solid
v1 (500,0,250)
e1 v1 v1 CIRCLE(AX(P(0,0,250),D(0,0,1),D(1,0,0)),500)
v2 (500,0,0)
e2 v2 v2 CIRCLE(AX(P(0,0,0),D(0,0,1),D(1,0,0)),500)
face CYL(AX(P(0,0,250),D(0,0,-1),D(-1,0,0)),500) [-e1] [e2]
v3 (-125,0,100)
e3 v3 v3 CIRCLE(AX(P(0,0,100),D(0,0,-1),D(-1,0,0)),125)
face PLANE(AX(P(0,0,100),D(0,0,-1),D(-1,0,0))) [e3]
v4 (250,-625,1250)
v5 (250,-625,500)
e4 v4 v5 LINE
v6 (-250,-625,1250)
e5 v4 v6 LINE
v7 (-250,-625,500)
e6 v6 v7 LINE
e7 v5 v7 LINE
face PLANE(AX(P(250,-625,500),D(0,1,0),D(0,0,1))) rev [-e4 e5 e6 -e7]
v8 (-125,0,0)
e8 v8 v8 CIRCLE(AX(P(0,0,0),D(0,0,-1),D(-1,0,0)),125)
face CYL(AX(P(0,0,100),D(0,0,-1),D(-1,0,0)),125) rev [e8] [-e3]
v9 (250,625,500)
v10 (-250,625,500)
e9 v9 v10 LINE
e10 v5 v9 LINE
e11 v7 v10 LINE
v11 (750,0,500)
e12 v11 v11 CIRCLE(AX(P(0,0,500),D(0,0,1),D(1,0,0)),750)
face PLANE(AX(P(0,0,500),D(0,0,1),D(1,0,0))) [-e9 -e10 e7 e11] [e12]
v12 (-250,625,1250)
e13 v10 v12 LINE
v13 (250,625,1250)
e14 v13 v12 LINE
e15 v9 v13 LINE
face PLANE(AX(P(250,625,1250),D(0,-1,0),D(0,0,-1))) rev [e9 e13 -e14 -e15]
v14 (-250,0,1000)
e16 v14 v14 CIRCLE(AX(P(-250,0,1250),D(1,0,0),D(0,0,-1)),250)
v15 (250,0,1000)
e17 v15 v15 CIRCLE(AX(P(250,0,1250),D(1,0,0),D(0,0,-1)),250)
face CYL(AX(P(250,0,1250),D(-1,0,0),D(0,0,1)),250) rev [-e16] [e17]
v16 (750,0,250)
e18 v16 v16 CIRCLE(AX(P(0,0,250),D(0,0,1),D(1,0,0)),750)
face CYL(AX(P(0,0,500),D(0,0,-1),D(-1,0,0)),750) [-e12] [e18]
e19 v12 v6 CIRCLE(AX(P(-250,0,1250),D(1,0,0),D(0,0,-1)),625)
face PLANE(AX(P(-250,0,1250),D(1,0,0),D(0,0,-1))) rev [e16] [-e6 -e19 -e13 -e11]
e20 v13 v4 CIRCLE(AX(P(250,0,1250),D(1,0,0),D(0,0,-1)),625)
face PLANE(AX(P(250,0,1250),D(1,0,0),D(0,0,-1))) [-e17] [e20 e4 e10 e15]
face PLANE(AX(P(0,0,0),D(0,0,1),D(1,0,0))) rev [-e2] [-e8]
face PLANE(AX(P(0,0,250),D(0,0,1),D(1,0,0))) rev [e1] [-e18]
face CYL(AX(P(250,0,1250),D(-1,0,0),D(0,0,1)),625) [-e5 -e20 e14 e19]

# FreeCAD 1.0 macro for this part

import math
import FreeCAD as App
import Part
import Sketcher

V = App.Vector

doc = App.newDocument("Part")
body = doc.addObject("PartDesign::Body", "Body")

# Sketch on XY plane
sketch1 = body.newObject("Sketcher::SketchObject", "Sketch")
sketch1.AttachmentSupport = (doc.getObject("XY_Plane"), [""])
sketch1.MapMode = "FlatFace"
sketch1.addGeometry(Part.Circle(V(0, 0, 0), V(0, 0, 1), 500), False)
sketch1.addConstraint([
    Sketcher.Constraint("Coincident", 0, 3, -1, 1),
    Sketcher.Constraint("Diameter", 0, 1000.0),
])
pad1 = body.newObject("PartDesign::Pad", "Pad")
pad1.Profile = sketch1
pad1.Length = 250

# Sketch on XY plane
sketch2 = body.newObject("Sketcher::SketchObject", "Sketch001")
sketch2.AttachmentSupport = (doc.getObject("XY_Plane"), [""])
sketch2.MapMode = "FlatFace"
sketch2.addGeometry(Part.Circle(V(0, 0, 0), V(0, 0, 1), 125), False)
sketch2.addConstraint([
    Sketcher.Constraint("Coincident", 0, 3, -1, 1),
    Sketcher.Constraint("Diameter", 0, 250.0),
])
pocket1 = body.newObject("PartDesign::Pocket", "Pocket")
pocket1.Profile = sketch2
pocket1.Length = 100
pocket1.Reversed = True

# Sketch on XY plane
sketch3 = body.newObject("Sketcher::SketchObject", "Sketch002")
sketch3.AttachmentSupport = (doc.getObject("XY_Plane"), [""])
sketch3.MapMode = "FlatFace"
sketch3.AttachmentOffset = App.Placement(V(0, 0, 250), App.Rotation())
sketch3.addGeometry(Part.Circle(V(0, 0, 0), V(0, 0, 1), 750), False)
sketch3.addConstraint([
    Sketcher.Constraint("Coincident", 0, 3, -1, 1),
    Sketcher.Constraint("Diameter", 0, 1500.0),
])
pad2 = body.newObject("PartDesign::Pad", "Pad001")
pad2.Profile = sketch3
pad2.Length = 250

# Sketch on YZ plane
sketch4 = body.newObject("Sketcher::SketchObject", "Sketch003")
sketch4.AttachmentSupport = (doc.getObject("YZ_Plane"), [""])
sketch4.MapMode = "FlatFace"
sketch4.addGeometry([
    Part.LineSegment(V(625, 500, 0), V(625, 1250, 0)),  # 0
    Part.ArcOfCircle(Part.Circle(V(0, 1250, 0), V(0, 0, 1), 625), math.radians(0), math.radians(180)),  # 1
    Part.LineSegment(V(-625, 1250, 0), V(-625, 500, 0)),  # 2
    Part.LineSegment(V(-625, 500, 0), V(625, 500, 0)),  # 3
    Part.Circle(V(0, 1250, 0), V(0, 0, 1), 250),  # 4
], False)
sketch4.addConstraint([
    Sketcher.Constraint("Tangent", 0, 2, 1, 1),
    Sketcher.Constraint("Tangent", 1, 2, 2, 1),
    Sketcher.Constraint("Coincident", 2, 2, 3, 1),
    Sketcher.Constraint("Coincident", 3, 2, 0, 1),
    Sketcher.Constraint("Vertical", 0),
    Sketcher.Constraint("Vertical", 2),
    Sketcher.Constraint("Horizontal", 3),
    Sketcher.Constraint("Coincident", 4, 3, 1, 3),
    Sketcher.Constraint("PointOnObject", 1, 3, -2),
    Sketcher.Constraint("Diameter", 4, 500.0),
    Sketcher.Constraint("Radius", 1, 625.0),
    Sketcher.Constraint("DistanceY", 0, 1, 0, 2, 750.0),
    Sketcher.Constraint("DistanceY", -1, 1, 1, 3, 1250.0),
])
pad3 = body.newObject("PartDesign::Pad", "Pad002")
pad3.Profile = sketch4
pad3.Length = 500
pad3.Midplane = True

doc.recompute()
